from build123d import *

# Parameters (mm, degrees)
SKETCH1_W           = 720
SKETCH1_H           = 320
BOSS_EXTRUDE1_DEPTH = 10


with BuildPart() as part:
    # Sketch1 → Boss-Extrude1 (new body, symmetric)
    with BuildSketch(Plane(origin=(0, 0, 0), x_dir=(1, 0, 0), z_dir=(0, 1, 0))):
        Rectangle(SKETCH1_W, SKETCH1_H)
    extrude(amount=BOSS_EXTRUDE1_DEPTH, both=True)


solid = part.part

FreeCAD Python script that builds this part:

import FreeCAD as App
import Part
import Sketcher

V = App.Vector
Q = App.Units.Quantity


def add_polygon(sketch, points):
    """Adds a closed chain of lines whose ends are joined by coincident constraints."""
    first, n = sketch.GeometryCount, len(points)
    for a, b in zip(points, points[1:] + points[:1]):
        sketch.addGeometry(Part.LineSegment(App.Vector(*a, 0), App.Vector(*b, 0)), False)
    for i in range(n):
        sketch.addConstraint(Sketcher.Constraint("Coincident", first + i, 2, first + (i + 1) % n, 1))

doc = App.newDocument("Part")
params = doc.addObject("Spreadsheet::Sheet", "Params")
for row, (alias, value) in enumerate([
    ("sketch1_width", "720 mm"),
    ("sketch1_height", "320 mm"),
    ("pad1_length", "20 mm"),
], start=1):
    params.set(f"A{row}", alias)
    params.set(f"B{row}", "=" + value)
    params.setAlias(f"B{row}", alias)

body = doc.addObject("PartDesign::Body", "Body")

sketch1 = body.newObject("Sketcher::SketchObject", "Sketch")
sketch1.AttachmentSupport = (doc.getObject("XZ_Plane"), [""])
sketch1.MapMode = "FlatFace"
add_polygon(sketch1, [(-360, -160), (-360, 160), (360, 160), (360, -160)])
sketch1.addConstraint([
    Sketcher.Constraint("Vertical", 0),
    Sketcher.Constraint("Horizontal", 1),
    Sketcher.Constraint("Vertical", 2),
    Sketcher.Constraint("Horizontal", 3),
    Sketcher.Constraint("Symmetric", 0, 2, 2, 2, -1, 1),
    Sketcher.Constraint("DistanceX", 1, 1, 1, 2, Q("720 mm")),
    Sketcher.Constraint("DistanceY", 0, 1, 0, 2, Q("320 mm")),
])
sketch1.setExpression("Constraints[9]", "Params.sketch1_width")
sketch1.setExpression("Constraints[10]", "Params.sketch1_height")
pad1 = body.newObject("PartDesign::Pad", "Pad")
pad1.Profile = sketch1
pad1.setExpression("Length", "Params.pad1_length")
pad1.Midplane = True

doc.recompute()
